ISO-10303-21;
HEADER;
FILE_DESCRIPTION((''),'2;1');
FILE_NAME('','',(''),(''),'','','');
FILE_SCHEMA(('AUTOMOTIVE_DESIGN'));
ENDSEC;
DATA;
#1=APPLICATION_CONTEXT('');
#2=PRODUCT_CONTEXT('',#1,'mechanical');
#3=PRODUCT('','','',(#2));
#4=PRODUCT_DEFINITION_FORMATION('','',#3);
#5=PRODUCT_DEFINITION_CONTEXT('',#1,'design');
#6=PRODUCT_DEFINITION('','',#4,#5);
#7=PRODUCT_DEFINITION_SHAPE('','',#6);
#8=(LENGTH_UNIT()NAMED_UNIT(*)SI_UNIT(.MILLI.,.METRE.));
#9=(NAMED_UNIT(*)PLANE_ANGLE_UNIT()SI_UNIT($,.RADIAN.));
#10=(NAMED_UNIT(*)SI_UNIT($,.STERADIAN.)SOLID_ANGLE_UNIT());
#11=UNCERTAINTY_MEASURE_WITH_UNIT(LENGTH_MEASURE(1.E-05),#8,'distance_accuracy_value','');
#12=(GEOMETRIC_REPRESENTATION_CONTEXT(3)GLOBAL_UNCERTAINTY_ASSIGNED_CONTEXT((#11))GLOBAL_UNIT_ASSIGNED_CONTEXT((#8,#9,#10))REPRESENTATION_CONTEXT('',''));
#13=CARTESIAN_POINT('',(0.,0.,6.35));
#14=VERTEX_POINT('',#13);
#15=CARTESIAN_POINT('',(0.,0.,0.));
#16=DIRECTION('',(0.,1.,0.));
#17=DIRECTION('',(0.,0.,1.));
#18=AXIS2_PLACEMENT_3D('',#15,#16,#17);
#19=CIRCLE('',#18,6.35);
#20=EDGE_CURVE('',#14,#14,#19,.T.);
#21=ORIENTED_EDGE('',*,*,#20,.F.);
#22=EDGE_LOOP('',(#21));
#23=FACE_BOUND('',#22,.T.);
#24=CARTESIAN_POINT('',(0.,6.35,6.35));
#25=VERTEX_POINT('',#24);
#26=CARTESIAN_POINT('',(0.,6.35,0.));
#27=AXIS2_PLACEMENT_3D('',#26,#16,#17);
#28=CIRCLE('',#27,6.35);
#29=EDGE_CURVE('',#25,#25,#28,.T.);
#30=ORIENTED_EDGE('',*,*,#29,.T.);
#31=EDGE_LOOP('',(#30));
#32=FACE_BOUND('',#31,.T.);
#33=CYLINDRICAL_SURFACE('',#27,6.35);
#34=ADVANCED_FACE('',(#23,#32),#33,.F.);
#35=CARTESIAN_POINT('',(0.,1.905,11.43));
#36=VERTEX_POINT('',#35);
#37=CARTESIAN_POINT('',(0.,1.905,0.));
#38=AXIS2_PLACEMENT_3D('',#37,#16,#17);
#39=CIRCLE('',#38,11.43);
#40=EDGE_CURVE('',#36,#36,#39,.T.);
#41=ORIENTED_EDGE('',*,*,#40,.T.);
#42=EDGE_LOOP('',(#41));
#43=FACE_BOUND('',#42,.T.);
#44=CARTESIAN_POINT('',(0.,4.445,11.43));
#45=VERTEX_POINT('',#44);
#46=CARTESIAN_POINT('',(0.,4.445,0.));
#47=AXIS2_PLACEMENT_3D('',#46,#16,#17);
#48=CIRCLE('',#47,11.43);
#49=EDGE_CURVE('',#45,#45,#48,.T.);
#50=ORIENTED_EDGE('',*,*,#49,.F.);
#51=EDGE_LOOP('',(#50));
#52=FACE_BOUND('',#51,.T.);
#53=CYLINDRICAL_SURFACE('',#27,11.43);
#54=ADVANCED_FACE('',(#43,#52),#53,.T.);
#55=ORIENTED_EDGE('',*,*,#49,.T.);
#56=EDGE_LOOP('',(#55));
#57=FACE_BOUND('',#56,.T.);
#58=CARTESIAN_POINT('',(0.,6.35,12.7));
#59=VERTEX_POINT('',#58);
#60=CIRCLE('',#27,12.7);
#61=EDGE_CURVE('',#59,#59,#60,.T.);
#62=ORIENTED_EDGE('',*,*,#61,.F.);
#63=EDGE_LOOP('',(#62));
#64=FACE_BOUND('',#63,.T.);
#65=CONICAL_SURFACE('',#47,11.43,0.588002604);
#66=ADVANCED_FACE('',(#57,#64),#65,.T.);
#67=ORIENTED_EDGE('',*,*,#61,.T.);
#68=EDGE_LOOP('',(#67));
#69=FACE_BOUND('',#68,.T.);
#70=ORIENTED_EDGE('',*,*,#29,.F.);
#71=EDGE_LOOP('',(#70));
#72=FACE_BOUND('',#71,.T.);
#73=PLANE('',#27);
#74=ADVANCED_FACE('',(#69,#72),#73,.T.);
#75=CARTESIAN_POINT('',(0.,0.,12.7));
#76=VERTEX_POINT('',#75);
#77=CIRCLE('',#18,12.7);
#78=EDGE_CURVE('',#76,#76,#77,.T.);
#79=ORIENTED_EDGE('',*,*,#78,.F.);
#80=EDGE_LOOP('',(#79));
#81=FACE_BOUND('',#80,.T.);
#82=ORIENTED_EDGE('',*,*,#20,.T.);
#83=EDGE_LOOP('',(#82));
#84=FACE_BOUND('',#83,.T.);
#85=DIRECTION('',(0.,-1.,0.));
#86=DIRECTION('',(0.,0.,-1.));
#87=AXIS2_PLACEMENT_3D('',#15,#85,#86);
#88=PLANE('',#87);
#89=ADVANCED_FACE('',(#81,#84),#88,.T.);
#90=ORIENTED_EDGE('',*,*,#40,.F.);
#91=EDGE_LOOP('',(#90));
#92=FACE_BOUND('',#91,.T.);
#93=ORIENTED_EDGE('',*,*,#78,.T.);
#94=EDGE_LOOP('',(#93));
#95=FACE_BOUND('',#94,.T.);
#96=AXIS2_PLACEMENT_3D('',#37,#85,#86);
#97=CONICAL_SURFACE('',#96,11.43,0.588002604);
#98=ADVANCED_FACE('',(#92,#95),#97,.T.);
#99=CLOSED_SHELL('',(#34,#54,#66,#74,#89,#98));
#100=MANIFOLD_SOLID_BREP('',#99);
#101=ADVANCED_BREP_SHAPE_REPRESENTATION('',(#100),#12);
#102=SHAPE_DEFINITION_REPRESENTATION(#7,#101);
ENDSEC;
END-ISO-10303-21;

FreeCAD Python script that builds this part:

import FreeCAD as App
import Part
import Sketcher

V = App.Vector
Q = App.Units.Quantity

doc = App.newDocument("Part")
body = doc.addObject("PartDesign::Body", "Body")

sketch1 = body.newObject("Sketcher::SketchObject", "Sketch")
sketch1.AttachmentSupport = (doc.getObject("XY_Plane"), [""])
sketch1.MapMode = "FlatFace"
sketch1.addGeometry(Part.LineSegment(V(-6.3, 6.3, 0), V(-12.7, 6.3, 0)), False)
sketch1.addGeometry(Part.LineSegment(V(-12.7, 6.3, 0), V(-11.4, 4.4, 0)), False)
sketch1.addGeometry(Part.LineSegment(V(-11.4, 4.4, 0), V(-11.4, 1.9, 0)), False)
sketch1.addGeometry(Part.LineSegment(V(-11.4, 1.9, 0), V(-12.7, 0, 0)), False)
sketch1.addGeometry(Part.LineSegment(V(-12.7, 0, 0), V(-6.3, 0, 0)), False)
sketch1.addGeometry(Part.LineSegment(V(-6.3, 0, 0), V(-6.3, 6.3, 0)), False)
sketch1.addConstraint(Sketcher.Constraint("Coincident", 0, 2, 1, 1))
sketch1.addConstraint(Sketcher.Constraint("Coincident", 1, 2, 2, 1))
sketch1.addConstraint(Sketcher.Constraint("Coincident", 2, 2, 3, 1))
sketch1.addConstraint(Sketcher.Constraint("Coincident", 3, 2, 4, 1))
sketch1.addConstraint(Sketcher.Constraint("Coincident", 4, 2, 5, 1))
sketch1.addConstraint(Sketcher.Constraint("Coincident", 5, 2, 0, 1))
sketch1.addConstraint(Sketcher.Constraint("Horizontal", 0))
sketch1.addConstraint(Sketcher.Constraint("Vertical", 2))
sketch1.addConstraint(Sketcher.Constraint("Horizontal", 4))
sketch1.addConstraint(Sketcher.Constraint("Vertical", 5))
sketch1.addConstraint(Sketcher.Constraint("PointOnObject", 3, 2, -1))
sketch1.addConstraint(Sketcher.Constraint("Vertical", 0, 2, 3, 2))
sketch1.addConstraint(Sketcher.Constraint("Equal", 4, 5))
sketch1.addConstraint(Sketcher.Constraint("Equal", 1, 3))
sketch1.addConstraint(Sketcher.Constraint("DistanceY", 2, 2, 2, 1, Q("0.1 in")))
sketch1.addConstraint(Sketcher.Constraint("DistanceX", 0, 2, 0, 1, Q("0.25 in")))
sketch1.addConstraint(Sketcher.Constraint("DistanceX", 0, 2, -1, 1, Q("0.5 in")))
sketch1.addConstraint(Sketcher.Constraint("DistanceX", 2, 2, 4, 2, Q("0.2 in")))
revolution = body.newObject("PartDesign::Revolution", "Revolution")
revolution.Profile = sketch1
revolution.ReferenceAxis = (sketch1, ["V_Axis"])
revolution.Angle = 360

doc.recompute()
